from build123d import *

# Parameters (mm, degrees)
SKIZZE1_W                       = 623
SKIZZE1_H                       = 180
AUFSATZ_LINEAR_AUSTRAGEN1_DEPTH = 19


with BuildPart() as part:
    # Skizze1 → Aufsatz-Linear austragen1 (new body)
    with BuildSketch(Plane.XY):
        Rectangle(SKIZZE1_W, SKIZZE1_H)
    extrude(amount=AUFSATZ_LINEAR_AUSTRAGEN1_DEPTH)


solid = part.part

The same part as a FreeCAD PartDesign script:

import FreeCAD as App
import Part
import Sketcher
from FreeCAD import Vector
Q = App.Units.Quantity


def add_polygon(sketch, points):
    """Adds a closed chain of lines whose ends are joined by coincident constraints."""
    first, n = sketch.GeometryCount, len(points)
    for a, b in zip(points, points[1:] + points[:1]):
        sketch.addGeometry(Part.LineSegment(App.Vector(*a, 0), App.Vector(*b, 0)), False)
    for i in range(n):
        sketch.addConstraint(Sketcher.Constraint("Coincident", first + i, 2, first + (i + 1) % n, 1))

doc = App.newDocument("Part")
body = doc.addObject("PartDesign::Body", "Body")

sketch1 = doc.addObject("Sketcher::SketchObject", "Sketch")
body.addObject(sketch1)
sketch1.AttachmentSupport = (doc.XY_Plane, [""])
sketch1.MapMode = "FlatFace"
add_polygon(sketch1, [(-312, 90), (-312, -90), (312, -90), (312, 90)])
sketch1.addConstraint(Sketcher.Constraint("Vertical", 0))
sketch1.addConstraint(Sketcher.Constraint("Horizontal", 1))
sketch1.addConstraint(Sketcher.Constraint("Vertical", 2))
sketch1.addConstraint(Sketcher.Constraint("Horizontal", 3))
sketch1.addConstraint(Sketcher.Constraint("Symmetric", 0, 2, 2, 2, -1, 1))
sketch1.addConstraint(Sketcher.Constraint("DistanceX", 1, 1, 1, 2, Q("623 mm")))
sketch1.addConstraint(Sketcher.Constraint("DistanceY", 0, 2, 0, 1, Q("180 mm")))
pad1 = doc.addObject("PartDesign::Pad", "Pad")
body.addObject(pad1)
pad1.Profile = sketch1
pad1.Length = 19

doc.recompute()
